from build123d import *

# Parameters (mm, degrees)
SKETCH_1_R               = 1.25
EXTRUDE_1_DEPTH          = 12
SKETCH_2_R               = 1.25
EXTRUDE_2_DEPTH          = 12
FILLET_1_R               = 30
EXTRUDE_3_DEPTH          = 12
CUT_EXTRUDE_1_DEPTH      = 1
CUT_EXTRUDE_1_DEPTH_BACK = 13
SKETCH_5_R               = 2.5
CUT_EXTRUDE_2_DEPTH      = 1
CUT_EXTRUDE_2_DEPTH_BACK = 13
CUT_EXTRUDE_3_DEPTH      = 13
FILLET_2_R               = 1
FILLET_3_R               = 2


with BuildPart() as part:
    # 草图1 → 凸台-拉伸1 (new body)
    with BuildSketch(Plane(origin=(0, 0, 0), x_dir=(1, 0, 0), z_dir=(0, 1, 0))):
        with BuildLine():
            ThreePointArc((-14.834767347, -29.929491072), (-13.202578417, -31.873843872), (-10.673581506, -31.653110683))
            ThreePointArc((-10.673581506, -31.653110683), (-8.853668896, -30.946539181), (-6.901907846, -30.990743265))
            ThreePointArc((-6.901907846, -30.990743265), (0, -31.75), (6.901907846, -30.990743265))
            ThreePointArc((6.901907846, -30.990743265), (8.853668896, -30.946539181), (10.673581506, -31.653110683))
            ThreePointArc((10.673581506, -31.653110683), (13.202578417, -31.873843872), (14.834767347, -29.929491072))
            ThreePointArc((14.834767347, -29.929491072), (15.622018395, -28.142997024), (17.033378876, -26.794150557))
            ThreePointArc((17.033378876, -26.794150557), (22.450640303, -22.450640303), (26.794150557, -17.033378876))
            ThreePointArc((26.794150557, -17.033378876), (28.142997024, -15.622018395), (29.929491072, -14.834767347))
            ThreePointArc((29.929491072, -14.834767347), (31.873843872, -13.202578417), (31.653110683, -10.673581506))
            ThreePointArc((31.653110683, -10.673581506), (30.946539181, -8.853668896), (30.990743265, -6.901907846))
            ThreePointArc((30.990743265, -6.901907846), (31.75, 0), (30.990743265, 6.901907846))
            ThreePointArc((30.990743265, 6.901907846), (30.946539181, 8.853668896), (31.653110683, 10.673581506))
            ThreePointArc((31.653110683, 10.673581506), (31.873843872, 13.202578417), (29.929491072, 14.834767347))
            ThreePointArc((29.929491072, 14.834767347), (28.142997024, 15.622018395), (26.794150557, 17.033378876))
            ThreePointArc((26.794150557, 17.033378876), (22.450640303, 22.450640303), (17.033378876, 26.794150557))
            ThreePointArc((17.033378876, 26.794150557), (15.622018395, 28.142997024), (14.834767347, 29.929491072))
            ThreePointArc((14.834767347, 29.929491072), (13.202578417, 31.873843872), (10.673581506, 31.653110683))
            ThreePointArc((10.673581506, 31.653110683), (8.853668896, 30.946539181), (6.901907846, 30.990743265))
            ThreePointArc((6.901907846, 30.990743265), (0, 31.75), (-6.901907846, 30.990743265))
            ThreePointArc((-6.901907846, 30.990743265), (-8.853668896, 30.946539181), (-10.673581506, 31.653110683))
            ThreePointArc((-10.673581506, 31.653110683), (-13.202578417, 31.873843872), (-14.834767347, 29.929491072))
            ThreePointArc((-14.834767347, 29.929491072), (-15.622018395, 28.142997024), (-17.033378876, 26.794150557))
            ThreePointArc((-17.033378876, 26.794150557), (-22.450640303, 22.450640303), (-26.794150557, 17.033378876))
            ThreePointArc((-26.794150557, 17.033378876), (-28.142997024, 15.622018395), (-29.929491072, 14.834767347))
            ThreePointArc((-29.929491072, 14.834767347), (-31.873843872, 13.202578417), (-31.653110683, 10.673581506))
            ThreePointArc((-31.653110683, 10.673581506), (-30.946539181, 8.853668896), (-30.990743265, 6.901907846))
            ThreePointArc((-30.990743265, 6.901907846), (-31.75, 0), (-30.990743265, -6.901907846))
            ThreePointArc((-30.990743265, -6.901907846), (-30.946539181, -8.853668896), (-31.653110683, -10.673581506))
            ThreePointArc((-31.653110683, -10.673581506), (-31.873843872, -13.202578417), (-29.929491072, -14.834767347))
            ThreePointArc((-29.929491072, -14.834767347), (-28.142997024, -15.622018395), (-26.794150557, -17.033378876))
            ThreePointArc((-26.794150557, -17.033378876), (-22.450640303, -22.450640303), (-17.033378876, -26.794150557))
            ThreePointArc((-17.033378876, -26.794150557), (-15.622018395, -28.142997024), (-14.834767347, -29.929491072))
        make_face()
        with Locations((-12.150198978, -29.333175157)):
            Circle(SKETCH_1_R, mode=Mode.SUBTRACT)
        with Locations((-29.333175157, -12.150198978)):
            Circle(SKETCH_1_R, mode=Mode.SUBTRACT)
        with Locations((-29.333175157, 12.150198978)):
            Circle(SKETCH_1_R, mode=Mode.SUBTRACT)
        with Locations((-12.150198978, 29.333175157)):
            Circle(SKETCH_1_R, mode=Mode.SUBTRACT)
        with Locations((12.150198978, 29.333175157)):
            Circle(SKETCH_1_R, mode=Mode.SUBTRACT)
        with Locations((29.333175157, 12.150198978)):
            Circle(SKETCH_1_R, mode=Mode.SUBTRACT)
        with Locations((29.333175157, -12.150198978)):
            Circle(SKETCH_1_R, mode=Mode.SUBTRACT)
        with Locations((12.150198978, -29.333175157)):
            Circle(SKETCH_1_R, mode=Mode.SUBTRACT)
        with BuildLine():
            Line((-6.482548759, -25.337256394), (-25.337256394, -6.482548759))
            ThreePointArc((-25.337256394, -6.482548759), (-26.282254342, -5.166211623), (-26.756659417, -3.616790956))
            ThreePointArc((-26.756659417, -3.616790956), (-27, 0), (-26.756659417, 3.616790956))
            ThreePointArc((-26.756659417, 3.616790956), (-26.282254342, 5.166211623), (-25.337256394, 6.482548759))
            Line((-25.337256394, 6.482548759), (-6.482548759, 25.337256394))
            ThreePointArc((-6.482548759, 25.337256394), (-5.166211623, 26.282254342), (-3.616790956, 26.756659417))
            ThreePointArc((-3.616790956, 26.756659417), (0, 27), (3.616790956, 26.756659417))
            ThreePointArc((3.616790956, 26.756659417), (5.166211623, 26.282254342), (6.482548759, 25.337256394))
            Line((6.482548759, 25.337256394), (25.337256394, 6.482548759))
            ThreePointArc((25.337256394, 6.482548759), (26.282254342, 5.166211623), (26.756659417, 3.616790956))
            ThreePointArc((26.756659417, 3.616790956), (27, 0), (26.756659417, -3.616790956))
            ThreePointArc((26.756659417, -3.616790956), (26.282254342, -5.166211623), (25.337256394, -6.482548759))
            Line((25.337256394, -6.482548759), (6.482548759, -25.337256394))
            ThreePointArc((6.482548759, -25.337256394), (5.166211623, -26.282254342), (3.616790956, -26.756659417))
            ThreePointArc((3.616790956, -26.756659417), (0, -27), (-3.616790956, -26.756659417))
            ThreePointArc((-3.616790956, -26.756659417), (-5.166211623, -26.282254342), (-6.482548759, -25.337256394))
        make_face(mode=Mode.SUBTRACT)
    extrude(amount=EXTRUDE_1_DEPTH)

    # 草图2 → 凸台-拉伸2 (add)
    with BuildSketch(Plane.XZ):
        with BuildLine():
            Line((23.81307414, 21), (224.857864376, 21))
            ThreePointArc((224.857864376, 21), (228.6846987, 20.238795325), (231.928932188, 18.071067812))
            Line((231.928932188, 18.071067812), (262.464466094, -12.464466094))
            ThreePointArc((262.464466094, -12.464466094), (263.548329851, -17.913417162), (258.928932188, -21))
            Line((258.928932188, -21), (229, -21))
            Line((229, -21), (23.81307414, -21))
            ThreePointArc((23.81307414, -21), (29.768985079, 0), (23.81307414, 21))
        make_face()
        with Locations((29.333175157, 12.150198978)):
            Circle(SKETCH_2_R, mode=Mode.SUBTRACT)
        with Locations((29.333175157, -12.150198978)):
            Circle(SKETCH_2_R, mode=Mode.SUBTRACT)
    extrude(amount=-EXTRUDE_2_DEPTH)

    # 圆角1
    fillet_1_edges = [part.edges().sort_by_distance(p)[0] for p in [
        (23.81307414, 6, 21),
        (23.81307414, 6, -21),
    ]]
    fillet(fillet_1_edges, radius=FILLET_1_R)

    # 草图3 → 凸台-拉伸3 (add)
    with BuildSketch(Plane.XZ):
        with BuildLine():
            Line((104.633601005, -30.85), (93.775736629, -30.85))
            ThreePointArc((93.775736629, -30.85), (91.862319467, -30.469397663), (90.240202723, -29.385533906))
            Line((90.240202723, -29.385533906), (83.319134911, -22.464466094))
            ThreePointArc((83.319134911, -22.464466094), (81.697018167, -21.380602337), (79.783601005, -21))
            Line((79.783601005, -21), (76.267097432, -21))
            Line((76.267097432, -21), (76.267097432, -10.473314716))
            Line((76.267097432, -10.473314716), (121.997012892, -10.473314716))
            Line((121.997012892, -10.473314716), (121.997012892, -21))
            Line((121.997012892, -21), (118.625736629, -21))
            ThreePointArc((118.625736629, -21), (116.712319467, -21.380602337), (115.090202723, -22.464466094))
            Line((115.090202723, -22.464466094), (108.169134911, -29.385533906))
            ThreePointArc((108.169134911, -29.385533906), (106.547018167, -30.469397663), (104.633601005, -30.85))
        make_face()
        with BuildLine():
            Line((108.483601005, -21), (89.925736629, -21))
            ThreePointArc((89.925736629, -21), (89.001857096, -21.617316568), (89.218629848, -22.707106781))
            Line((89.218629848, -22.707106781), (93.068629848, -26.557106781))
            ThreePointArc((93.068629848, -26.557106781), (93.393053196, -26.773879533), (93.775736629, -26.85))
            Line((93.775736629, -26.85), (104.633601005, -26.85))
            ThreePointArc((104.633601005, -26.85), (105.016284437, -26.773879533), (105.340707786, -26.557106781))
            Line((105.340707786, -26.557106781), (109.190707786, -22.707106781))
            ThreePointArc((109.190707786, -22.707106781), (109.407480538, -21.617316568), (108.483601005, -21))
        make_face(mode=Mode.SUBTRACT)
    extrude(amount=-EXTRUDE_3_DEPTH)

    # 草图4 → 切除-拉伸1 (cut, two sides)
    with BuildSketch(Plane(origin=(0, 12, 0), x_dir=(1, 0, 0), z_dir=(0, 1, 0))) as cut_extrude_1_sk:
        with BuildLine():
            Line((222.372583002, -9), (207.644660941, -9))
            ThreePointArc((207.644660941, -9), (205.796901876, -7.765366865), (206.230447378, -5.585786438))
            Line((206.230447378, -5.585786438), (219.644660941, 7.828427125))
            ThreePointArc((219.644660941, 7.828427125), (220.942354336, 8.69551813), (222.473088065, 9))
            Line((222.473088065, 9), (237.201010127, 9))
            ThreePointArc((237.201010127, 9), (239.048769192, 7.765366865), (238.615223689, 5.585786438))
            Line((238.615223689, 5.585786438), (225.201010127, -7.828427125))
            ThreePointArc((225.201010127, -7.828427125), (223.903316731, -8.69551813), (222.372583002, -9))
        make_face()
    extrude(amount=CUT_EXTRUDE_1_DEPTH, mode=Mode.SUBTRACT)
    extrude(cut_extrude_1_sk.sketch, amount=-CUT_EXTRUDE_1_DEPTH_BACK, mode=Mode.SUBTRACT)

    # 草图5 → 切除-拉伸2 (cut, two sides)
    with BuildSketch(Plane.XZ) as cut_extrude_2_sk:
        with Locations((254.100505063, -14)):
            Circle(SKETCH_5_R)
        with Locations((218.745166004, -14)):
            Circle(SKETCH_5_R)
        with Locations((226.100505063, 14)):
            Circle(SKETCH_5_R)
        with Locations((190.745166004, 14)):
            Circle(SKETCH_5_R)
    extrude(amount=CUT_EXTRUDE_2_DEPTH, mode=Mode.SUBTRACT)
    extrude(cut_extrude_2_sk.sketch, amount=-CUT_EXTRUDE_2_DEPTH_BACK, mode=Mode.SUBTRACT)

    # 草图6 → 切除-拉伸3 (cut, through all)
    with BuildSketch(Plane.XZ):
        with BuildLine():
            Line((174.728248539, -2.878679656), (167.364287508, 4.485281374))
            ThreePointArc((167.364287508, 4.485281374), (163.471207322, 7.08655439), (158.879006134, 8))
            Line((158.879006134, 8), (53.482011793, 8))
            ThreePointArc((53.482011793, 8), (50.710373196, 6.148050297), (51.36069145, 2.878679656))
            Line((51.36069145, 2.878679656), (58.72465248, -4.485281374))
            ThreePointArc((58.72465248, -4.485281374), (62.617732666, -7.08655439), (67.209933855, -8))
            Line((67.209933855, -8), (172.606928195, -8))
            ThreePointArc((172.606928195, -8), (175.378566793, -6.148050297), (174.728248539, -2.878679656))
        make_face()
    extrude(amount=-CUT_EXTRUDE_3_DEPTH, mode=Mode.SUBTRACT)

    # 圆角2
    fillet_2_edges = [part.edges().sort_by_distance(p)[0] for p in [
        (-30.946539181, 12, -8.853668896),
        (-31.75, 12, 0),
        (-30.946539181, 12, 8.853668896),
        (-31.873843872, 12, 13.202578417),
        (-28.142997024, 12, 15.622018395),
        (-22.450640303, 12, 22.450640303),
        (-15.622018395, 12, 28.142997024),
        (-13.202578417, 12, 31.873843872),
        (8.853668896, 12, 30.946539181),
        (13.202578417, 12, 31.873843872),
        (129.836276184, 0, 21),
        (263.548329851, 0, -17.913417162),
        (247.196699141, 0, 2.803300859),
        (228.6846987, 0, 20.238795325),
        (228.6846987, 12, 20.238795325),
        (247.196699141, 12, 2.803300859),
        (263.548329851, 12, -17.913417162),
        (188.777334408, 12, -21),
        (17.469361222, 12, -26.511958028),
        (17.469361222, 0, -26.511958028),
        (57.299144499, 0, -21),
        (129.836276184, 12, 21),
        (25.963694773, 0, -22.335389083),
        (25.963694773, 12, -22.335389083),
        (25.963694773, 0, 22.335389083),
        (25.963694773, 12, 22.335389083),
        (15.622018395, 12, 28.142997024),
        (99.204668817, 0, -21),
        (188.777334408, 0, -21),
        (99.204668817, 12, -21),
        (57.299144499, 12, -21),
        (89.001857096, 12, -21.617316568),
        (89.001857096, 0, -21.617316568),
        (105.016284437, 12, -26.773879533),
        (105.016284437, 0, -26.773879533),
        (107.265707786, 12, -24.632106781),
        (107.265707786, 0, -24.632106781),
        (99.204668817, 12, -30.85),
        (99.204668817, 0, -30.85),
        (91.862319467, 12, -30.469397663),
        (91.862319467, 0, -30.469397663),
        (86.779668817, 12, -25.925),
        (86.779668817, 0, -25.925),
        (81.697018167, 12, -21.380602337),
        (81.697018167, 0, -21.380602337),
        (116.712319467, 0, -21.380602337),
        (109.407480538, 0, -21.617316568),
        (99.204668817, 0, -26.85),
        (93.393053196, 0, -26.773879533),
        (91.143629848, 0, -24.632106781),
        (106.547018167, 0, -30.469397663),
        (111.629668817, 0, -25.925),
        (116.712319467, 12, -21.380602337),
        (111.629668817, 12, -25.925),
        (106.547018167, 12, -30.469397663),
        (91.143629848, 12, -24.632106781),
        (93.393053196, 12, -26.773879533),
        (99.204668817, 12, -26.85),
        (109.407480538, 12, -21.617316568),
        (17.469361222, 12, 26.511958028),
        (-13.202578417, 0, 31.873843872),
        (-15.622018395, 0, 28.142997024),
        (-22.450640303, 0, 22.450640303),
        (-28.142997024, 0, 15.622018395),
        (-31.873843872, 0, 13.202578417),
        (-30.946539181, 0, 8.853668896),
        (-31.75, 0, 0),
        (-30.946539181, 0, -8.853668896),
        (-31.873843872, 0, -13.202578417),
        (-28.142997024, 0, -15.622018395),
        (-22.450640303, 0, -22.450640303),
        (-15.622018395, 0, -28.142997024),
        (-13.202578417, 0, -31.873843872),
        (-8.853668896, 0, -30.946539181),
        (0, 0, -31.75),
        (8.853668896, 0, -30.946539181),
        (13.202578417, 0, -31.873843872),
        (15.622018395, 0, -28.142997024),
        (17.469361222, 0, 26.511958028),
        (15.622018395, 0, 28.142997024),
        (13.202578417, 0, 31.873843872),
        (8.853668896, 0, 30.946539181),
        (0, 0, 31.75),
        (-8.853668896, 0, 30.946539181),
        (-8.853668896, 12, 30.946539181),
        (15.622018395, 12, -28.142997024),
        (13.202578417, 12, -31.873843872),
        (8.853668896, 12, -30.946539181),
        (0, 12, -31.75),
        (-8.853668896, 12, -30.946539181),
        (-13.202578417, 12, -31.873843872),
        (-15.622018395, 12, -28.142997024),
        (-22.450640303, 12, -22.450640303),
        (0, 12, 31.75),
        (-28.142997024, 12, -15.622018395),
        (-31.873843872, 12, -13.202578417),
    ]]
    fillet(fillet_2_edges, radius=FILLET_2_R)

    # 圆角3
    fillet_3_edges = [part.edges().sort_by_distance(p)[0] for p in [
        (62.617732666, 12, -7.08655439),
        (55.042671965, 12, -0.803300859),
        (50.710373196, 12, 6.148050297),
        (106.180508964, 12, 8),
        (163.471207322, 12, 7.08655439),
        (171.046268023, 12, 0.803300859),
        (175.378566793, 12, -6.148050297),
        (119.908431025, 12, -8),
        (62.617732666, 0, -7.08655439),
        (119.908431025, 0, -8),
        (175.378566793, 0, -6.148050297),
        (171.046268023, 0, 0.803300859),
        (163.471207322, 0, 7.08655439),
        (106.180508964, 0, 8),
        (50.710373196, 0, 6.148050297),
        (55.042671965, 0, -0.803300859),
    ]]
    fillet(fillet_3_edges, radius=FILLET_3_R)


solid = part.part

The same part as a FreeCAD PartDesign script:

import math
import FreeCAD as App
import Part
import Sketcher

V = App.Vector
Q = App.Units.Quantity


def edges_at(feature, points):
    """Names of the edges that pass closest to the given points."""
    edges = feature.Shape.Edges
    near = lambda p: min(range(len(edges)), key=lambda i: edges[i].distToShape(Part.Vertex(*p))[0])
    return sorted({f"Edge{near(p) + 1}" for p in points})

doc = App.newDocument("Part")
body = doc.addObject("PartDesign::Body", "Body")

sketch1 = body.newObject("Sketcher::SketchObject", "Sketch")
sketch1.AttachmentSupport = (doc.getObject("XZ_Plane"), [""])
sketch1.MapMode = "FlatFace"
sketch1.addGeometry([
    Part.ArcOfCircle(Part.Circle(V(-12.2, 29.3, 0), V(0, 0, 1), 2.8), math.radians(58), math.radians(167)),
    Part.ArcOfCircle(Part.Circle(V(-8, 35.9, 0), V(0, 0, 1), 5), math.radians(-122), math.radians(-77)),
    Part.ArcOfCircle(Part.Circle(V(0, 0, 0), V(0, 0, 1), 31.8), math.radians(77), math.radians(103)),
    Part.ArcOfCircle(Part.Circle(V(8, 35.9, 0), V(0, 0, 1), 5), math.radians(-103), math.radians(-58)),
    Part.ArcOfCircle(Part.Circle(V(12.2, 29.3, 0), V(0, 0, 1), 2.8), math.radians(13), math.radians(122)),
    Part.ArcOfCircle(Part.Circle(V(19.7, 31, 0), V(0, 0, 1), 5), math.radians(-167), math.radians(-122)),
    Part.ArcOfCircle(Part.Circle(V(0, 0, 0), V(0, 0, 1), 31.7), math.radians(32), math.radians(58)),
    Part.ArcOfCircle(Part.Circle(V(31, 19.7, 0), V(0, 0, 1), 5), math.radians(-148), math.radians(-103)),
    Part.ArcOfCircle(Part.Circle(V(29.3, 12.2, 0), V(0, 0, 1), 2.8), math.radians(-32), math.radians(77)),
    Part.ArcOfCircle(Part.Circle(V(35.9, 8, 0), V(0, 0, 1), 5), math.radians(148), math.radians(193)),
    Part.ArcOfCircle(Part.Circle(V(0, 0, 0), V(0, 0, 1), 31.8), math.radians(-13), math.radians(13)),
    Part.ArcOfCircle(Part.Circle(V(35.9, -8, 0), V(0, 0, 1), 5), math.radians(167), math.radians(212)),
    Part.ArcOfCircle(Part.Circle(V(29.3, -12.2, 0), V(0, 0, 1), 2.8), math.radians(-77), math.radians(32)),
    Part.ArcOfCircle(Part.Circle(V(31, -19.7, 0), V(0, 0, 1), 5), math.radians(103), math.radians(148)),
    Part.ArcOfCircle(Part.Circle(V(0, 0, 0), V(0, 0, 1), 31.7), math.radians(-58), math.radians(-32)),
    Part.ArcOfCircle(Part.Circle(V(19.7, -31, 0), V(0, 0, 1), 5), math.radians(122), math.radians(167)),
    Part.ArcOfCircle(Part.Circle(V(12.2, -29.3, 0), V(0, 0, 1), 2.8), math.radians(-122), math.radians(-13)),
    Part.ArcOfCircle(Part.Circle(V(8, -35.9, 0), V(0, 0, 1), 5), math.radians(58), math.radians(103)),
    Part.ArcOfCircle(Part.Circle(V(0, 0, 0), V(0, 0, 1), 31.8), math.radians(-103), math.radians(-77)),
    Part.ArcOfCircle(Part.Circle(V(-8, -35.9, 0), V(0, 0, 1), 5), math.radians(77), math.radians(122)),
    Part.ArcOfCircle(Part.Circle(V(-12.2, -29.3, 0), V(0, 0, 1), 2.8), math.radians(-167), math.radians(-58)),
    Part.ArcOfCircle(Part.Circle(V(-19.7, -31, 0), V(0, 0, 1), 5), math.radians(13), math.radians(58)),
    Part.ArcOfCircle(Part.Circle(V(0, 0, 0), V(0, 0, 1), 31.7), math.radians(-148), math.radians(-122)),
    Part.ArcOfCircle(Part.Circle(V(-31, -19.7, 0), V(0, 0, 1), 5), math.radians(32), math.radians(77)),
    Part.ArcOfCircle(Part.Circle(V(-29.3, -12.2, 0), V(0, 0, 1), 2.8), math.radians(148), math.radians(257)),
    Part.ArcOfCircle(Part.Circle(V(-35.9, -8, 0), V(0, 0, 1), 5), math.radians(-32), math.radians(13)),
    Part.ArcOfCircle(Part.Circle(V(0, 0, 0), V(0, 0, 1), 31.8), math.radians(167), math.radians(193)),
    Part.ArcOfCircle(Part.Circle(V(-35.9, 8, 0), V(0, 0, 1), 5), math.radians(-13), math.radians(32)),
    Part.ArcOfCircle(Part.Circle(V(-29.3, 12.2, 0), V(0, 0, 1), 2.8), math.radians(103), math.radians(212)),
    Part.ArcOfCircle(Part.Circle(V(-31, 19.7, 0), V(0, 0, 1), 5), math.radians(-77), math.radians(-32)),
    Part.ArcOfCircle(Part.Circle(V(0, 0, 0), V(0, 0, 1), 31.7), math.radians(122), math.radians(148)),
    Part.ArcOfCircle(Part.Circle(V(-19.7, 31, 0), V(0, 0, 1), 5), math.radians(-58), math.radians(-13)),
    Part.Circle(V(-12.2, 29.3, 0), V(0, 0, 1), 1.2),
    Part.Circle(V(-29.3, 12.2, 0), V(0, 0, 1), 1.2),
    Part.Circle(V(12.2, 29.3, 0), V(0, 0, 1), 1.2),
    Part.Circle(V(29.3, 12.2, 0), V(0, 0, 1), 1.2),
    Part.Circle(V(-29.3, -12.2, 0), V(0, 0, 1), 1.2),
    Part.Circle(V(-12.2, -29.3, 0), V(0, 0, 1), 1.2),
    Part.ArcOfCircle(Part.Circle(V(-2.9, 21.8, 0), V(0, 0, 1), 5), math.radians(98), math.radians(135)),
    Part.LineSegment(V(-6.5, 25.3, 0), V(-25.3, 6.5, 0)),
    Part.ArcOfCircle(Part.Circle(V(-21.8, 2.9, 0), V(0, 0, 1), 5), math.radians(135), math.radians(172)),
    Part.ArcOfCircle(Part.Circle(V(0, 0, 0), V(0, 0, 1), 27), math.radians(172.3), math.radians(187.7)),
    Part.ArcOfCircle(Part.Circle(V(-21.8, -2.9, 0), V(0, 0, 1), 5), math.radians(-172), math.radians(-135)),
    Part.LineSegment(V(-25.3, -6.5, 0), V(-6.5, -25.3, 0)),
    Part.ArcOfCircle(Part.Circle(V(-2.9, -21.8, 0), V(0, 0, 1), 5), math.radians(-135), math.radians(-98)),
    Part.ArcOfCircle(Part.Circle(V(0, 0, 0), V(0, 0, 1), 27), math.radians(-97.7), math.radians(-82.3)),
    Part.ArcOfCircle(Part.Circle(V(2.9, -21.8, 0), V(0, 0, 1), 5), math.radians(-82), math.radians(-45)),
    Part.LineSegment(V(6.5, -25.3, 0), V(25.3, -6.5, 0)),
    Part.ArcOfCircle(Part.Circle(V(21.8, -2.9, 0), V(0, 0, 1), 5), math.radians(-45), math.radians(-8)),
    Part.ArcOfCircle(Part.Circle(V(0, 0, 0), V(0, 0, 1), 27), math.radians(-7.7), math.radians(7.7)),
    Part.ArcOfCircle(Part.Circle(V(21.8, 2.9, 0), V(0, 0, 1), 5), math.radians(8), math.radians(45)),
    Part.LineSegment(V(25.3, 6.5, 0), V(6.5, 25.3, 0)),
    Part.ArcOfCircle(Part.Circle(V(2.9, 21.8, 0), V(0, 0, 1), 5), math.radians(45), math.radians(82)),
    Part.ArcOfCircle(Part.Circle(V(0, 0, 0), V(0, 0, 1), 27), math.radians(82.3), math.radians(97.7)),
    Part.Circle(V(29.3, -12.2, 0), V(0, 0, 1), 1.2),
    Part.Circle(V(12.2, -29.3, 0), V(0, 0, 1), 1.2),
], False)
sketch1.addConstraint([
    Sketcher.Constraint("Tangent", 0, 1, 1, 1),
    Sketcher.Constraint("Tangent", 1, 2, 2, 2),
    Sketcher.Constraint("Tangent", 2, 1, 3, 1),
    Sketcher.Constraint("Tangent", 3, 2, 4, 2),
    Sketcher.Constraint("Tangent", 4, 1, 5, 1),
    Sketcher.Constraint("Tangent", 5, 2, 6, 2),
    Sketcher.Constraint("Tangent", 6, 1, 7, 1),
    Sketcher.Constraint("Tangent", 7, 2, 8, 2),
    Sketcher.Constraint("Tangent", 8, 1, 9, 1),
    Sketcher.Constraint("Tangent", 9, 2, 10, 2),
    Sketcher.Constraint("Tangent", 10, 1, 11, 1),
    Sketcher.Constraint("Tangent", 11, 2, 12, 2),
    Sketcher.Constraint("Tangent", 12, 1, 13, 1),
    Sketcher.Constraint("Tangent", 13, 2, 14, 2),
    Sketcher.Constraint("Tangent", 14, 1, 15, 1),
    Sketcher.Constraint("Tangent", 15, 2, 16, 2),
    Sketcher.Constraint("Tangent", 16, 1, 17, 1),
    Sketcher.Constraint("Tangent", 17, 2, 18, 2),
    Sketcher.Constraint("Tangent", 18, 1, 19, 1),
    Sketcher.Constraint("Tangent", 19, 2, 20, 2),
    Sketcher.Constraint("Tangent", 20, 1, 21, 1),
    Sketcher.Constraint("Tangent", 21, 2, 22, 2),
    Sketcher.Constraint("Tangent", 22, 1, 23, 1),
    Sketcher.Constraint("Tangent", 23, 2, 24, 2),
    Sketcher.Constraint("Tangent", 24, 1, 25, 1),
    Sketcher.Constraint("Tangent", 25, 2, 26, 2),
    Sketcher.Constraint("Tangent", 26, 1, 27, 1),
    Sketcher.Constraint("Tangent", 27, 2, 28, 2),
    Sketcher.Constraint("Tangent", 28, 1, 29, 1),
    Sketcher.Constraint("Tangent", 29, 2, 30, 2),
    Sketcher.Constraint("Tangent", 30, 1, 31, 1),
    Sketcher.Constraint("Tangent", 31, 2, 0, 2),
    Sketcher.Constraint("Tangent", 38, 2, 39, 1),
    Sketcher.Constraint("Tangent", 39, 2, 40, 1),
    Sketcher.Constraint("Tangent", 40, 2, 41, 1),
    Sketcher.Constraint("Tangent", 41, 2, 42, 1),
    Sketcher.Constraint("Tangent", 42, 2, 43, 1),
    Sketcher.Constraint("Tangent", 43, 2, 44, 1),
    Sketcher.Constraint("Tangent", 44, 2, 45, 1),
    Sketcher.Constraint("Tangent", 45, 2, 46, 1),
    Sketcher.Constraint("Tangent", 46, 2, 47, 1),
    Sketcher.Constraint("Tangent", 47, 2, 48, 1),
    Sketcher.Constraint("Tangent", 48, 2, 49, 1),
    Sketcher.Constraint("Tangent", 49, 2, 50, 1),
    Sketcher.Constraint("Tangent", 50, 2, 51, 1),
    Sketcher.Constraint("Tangent", 51, 2, 52, 1),
    Sketcher.Constraint("Tangent", 52, 2, 53, 1),
    Sketcher.Constraint("Tangent", 53, 2, 38, 1),
    Sketcher.Constraint("Coincident", 2, 3, -1, 1),
    Sketcher.Constraint("Coincident", 6, 3, -1, 1),
    Sketcher.Constraint("Coincident", 10, 3, -1, 1),
    Sketcher.Constraint("Coincident", 14, 3, -1, 1),
    Sketcher.Constraint("Coincident", 18, 3, -1, 1),
    Sketcher.Constraint("Coincident", 22, 3, -1, 1),
    Sketcher.Constraint("Coincident", 26, 3, -1, 1),
    Sketcher.Constraint("Coincident", 30, 3, -1, 1),
    Sketcher.Constraint("Coincident", 41, 3, -1, 1),
    Sketcher.Constraint("Coincident", 45, 3, -1, 1),
    Sketcher.Constraint("Coincident", 49, 3, -1, 1),
    Sketcher.Constraint("Coincident", 53, 3, -1, 1),
    Sketcher.Constraint("Coincident", 32, 3, 0, 3),
    Sketcher.Constraint("Coincident", 33, 3, 28, 3),
    Sketcher.Constraint("Coincident", 34, 3, 4, 3),
    Sketcher.Constraint("Coincident", 35, 3, 8, 3),
    Sketcher.Constraint("Coincident", 36, 3, 24, 3),
    Sketcher.Constraint("Coincident", 37, 3, 20, 3),
    Sketcher.Constraint("Coincident", 54, 3, 12, 3),
    Sketcher.Constraint("Coincident", 55, 3, 16, 3),
    Sketcher.Constraint("Equal", 1, 3),
    Sketcher.Constraint("Equal", 0, 4),
    Sketcher.Constraint("Equal", 3, 5),
    Sketcher.Constraint("Equal", 2, 6),
    Sketcher.Constraint("Equal", 5, 7),
    Sketcher.Constraint("Equal", 4, 8),
    Sketcher.Constraint("Equal", 7, 9),
    Sketcher.Constraint("Equal", 6, 10),
    Sketcher.Constraint("Equal", 9, 11),
    Sketcher.Constraint("Equal", 8, 12),
    Sketcher.Constraint("Equal", 11, 13),
    Sketcher.Constraint("Equal", 10, 14),
    Sketcher.Constraint("Equal", 13, 15),
    Sketcher.Constraint("Equal", 12, 16),
    Sketcher.Constraint("Equal", 15, 17),
    Sketcher.Constraint("Equal", 14, 18),
    Sketcher.Constraint("Equal", 17, 19),
    Sketcher.Constraint("Equal", 16, 20),
    Sketcher.Constraint("Equal", 19, 21),
    Sketcher.Constraint("Equal", 18, 22),
    Sketcher.Constraint("Equal", 21, 23),
    Sketcher.Constraint("Equal", 20, 24),
    Sketcher.Constraint("Equal", 23, 25),
    Sketcher.Constraint("Equal", 22, 26),
    Sketcher.Constraint("Equal", 25, 27),
    Sketcher.Constraint("Equal", 24, 28),
    Sketcher.Constraint("Equal", 27, 29),
    Sketcher.Constraint("Equal", 26, 30),
    Sketcher.Constraint("Equal", 29, 31),
    Sketcher.Constraint("Equal", 32, 33),
    Sketcher.Constraint("Equal", 33, 34),
    Sketcher.Constraint("Equal", 34, 35),
    Sketcher.Constraint("Equal", 35, 36),
    Sketcher.Constraint("Equal", 36, 37),
    Sketcher.Constraint("Equal", 31, 38),
    Sketcher.Constraint("Equal", 38, 40),
    Sketcher.Constraint("Equal", 40, 42),
    Sketcher.Constraint("Equal", 42, 44),
    Sketcher.Constraint("Equal", 41, 45),
    Sketcher.Constraint("Equal", 44, 46),
    Sketcher.Constraint("Equal", 46, 48),
    Sketcher.Constraint("Equal", 45, 49),
    Sketcher.Constraint("Equal", 48, 50),
    Sketcher.Constraint("Equal", 50, 52),
    Sketcher.Constraint("Equal", 49, 53),
    Sketcher.Constraint("Equal", 37, 54),
    Sketcher.Constraint("Equal", 54, 55),
    Sketcher.Constraint("Symmetric", 0, 3, 16, 3, -1, 1),
    Sketcher.Constraint("Symmetric", 4, 3, 20, 3, -1, 1),
    Sketcher.Constraint("Symmetric", 8, 3, 24, 3, -1, 1),
    Sketcher.Constraint("Symmetric", 12, 3, 28, 3, -1, 1),
    Sketcher.Constraint("Symmetric", 38, 2, 46, 2, -1, 1),
    Sketcher.Constraint("Symmetric", 42, 2, 50, 2, -1, 1),
    Sketcher.Constraint("Symmetric", 0, 3, 4, 3, -2),
    Sketcher.Constraint("Symmetric", 12, 3, 24, 3, -2),
    Sketcher.Constraint("Symmetric", 43, 2, 46, 2, -2),
    Sketcher.Constraint("Perpendicular", 39, 43),
    Sketcher.Constraint("Radius", 1, Q("5 mm")),
    Sketcher.Constraint("Radius", 41, Q("27 mm")),
    Sketcher.Constraint("Diameter", 32, Q("2.5 mm")),
    Sketcher.Constraint("Radius", 0, Q("2.75 mm")),
    Sketcher.Constraint("Radius", 2, Q("31.75 mm")),
    Sketcher.Constraint("DistanceX", 0, 3, -1, 1, Q("12.150199 mm")),
    Sketcher.Constraint("DistanceX", -1, 1, 5, 3, Q("19.715801 mm")),
    Sketcher.Constraint("DistanceX", -1, 1, 7, 3, Q("31.013702 mm")),
    Sketcher.Constraint("DistanceY", -1, 1, 8, 3, Q("12.150199 mm")),
    Sketcher.Constraint("DistanceX", 38, 2, -1, 1, Q("6.482549 mm")),
])
pad1 = body.newObject("PartDesign::Pad", "Pad")
pad1.Profile = sketch1
pad1.Length = 12
pad1.Reversed = True

sketch2 = body.newObject("Sketcher::SketchObject", "Sketch001")
sketch2.AttachmentSupport = (doc.getObject("XZ_Plane"), [""])
sketch2.MapMode = "FlatFace"
sketch2.addGeometry([
    Part.LineSegment(V(224.9, 21, 0), V(23.8, 21, 0)),
    Part.ArcOfCircle(Part.Circle(V(-10.2, 0, 0), V(0, 0, 1), 40), math.radians(-32), math.radians(32)),
    Part.LineSegment(V(23.8, -21, 0), V(258.9, -21, 0)),
    Part.ArcOfCircle(Part.Circle(V(258.9, -16, 0), V(0, 0, 1), 5), math.radians(-90), math.radians(45)),
    Part.LineSegment(V(262.5, -12.5, 0), V(231.9, 18.1, 0)),
    Part.ArcOfCircle(Part.Circle(V(224.9, 11, 0), V(0, 0, 1), 10), math.radians(45), math.radians(90)),
    Part.Circle(V(29.3, -12.2, 0), V(0, 0, 1), 1.2),
    Part.Circle(V(29.3, 12.2, 0), V(0, 0, 1), 1.2),
], False)
sketch2.addConstraint([
    Sketcher.Constraint("Coincident", 0, 2, 1, 2),
    Sketcher.Constraint("Coincident", 1, 1, 2, 1),
    Sketcher.Constraint("Tangent", 2, 2, 3, 1),
    Sketcher.Constraint("Tangent", 3, 2, 4, 1),
    Sketcher.Constraint("Tangent", 4, 2, 5, 1),
    Sketcher.Constraint("Tangent", 5, 2, 0, 1),
    Sketcher.Constraint("Horizontal", 0),
    Sketcher.Constraint("Horizontal", 2),
    Sketcher.Constraint("Equal", 6, 7),
    Sketcher.Constraint("Symmetric", 6, 3, 7, 3, -1),
    Sketcher.Constraint("Symmetric", 0, 2, 1, 1, -1),
    Sketcher.Constraint("Radius", 1, Q("40 mm")),
    Sketcher.Constraint("Radius", 3, Q("5 mm")),
    Sketcher.Constraint("Radius", 5, Q("10 mm")),
    Sketcher.Constraint("Diameter", 6, Q("2.5 mm")),
    Sketcher.Constraint("Angle", 4, Q("135 deg")),
    Sketcher.Constraint("DistanceY", 3, 3, -1, 1, Q("16 mm")),
    Sketcher.Constraint("DistanceX", 0, 2, 0, 1, Q("201.04479 mm")),
    Sketcher.Constraint("DistanceY", 6, 3, -1, 1, Q("12.150199 mm")),
    Sketcher.Constraint("DistanceX", 0, 2, 7, 3, Q("5.520101 mm")),
    Sketcher.Constraint("DistanceX", 1, 3, -1, 1, Q("10.231015 mm")),
])
pad2 = body.newObject("PartDesign::Pad", "Pad001")
pad2.Profile = sketch2
pad2.Length = 12
pad2.Reversed = True
doc.recompute()

fillet = body.newObject("PartDesign::Fillet", "Fillet")
fillet.Base = (pad2, edges_at(pad2, [(23.813, 6, 21), (23.813, 6, -21)]))
fillet.Radius = 30

sketch3 = body.newObject("Sketcher::SketchObject", "Sketch002")
sketch3.AttachmentSupport = (doc.getObject("XZ_Plane"), [""])
sketch3.MapMode = "FlatFace"
sketch3.addGeometry([
    Part.LineSegment(V(93.8, -30.9, 0), V(104.6, -30.9, 0)),
    Part.ArcOfCircle(Part.Circle(V(104.6, -25.9, 0), V(0, 0, 1), 5), math.radians(-90), math.radians(-45)),
    Part.LineSegment(V(108.2, -29.4, 0), V(115.1, -22.5, 0)),
    Part.ArcOfCircle(Part.Circle(V(118.6, -26, 0), V(0, 0, 1), 5), math.radians(90), math.radians(135)),
    Part.LineSegment(V(118.6, -21, 0), V(122, -21, 0)),
    Part.LineSegment(V(122, -21, 0), V(122, -10.5, 0)),
    Part.LineSegment(V(122, -10.5, 0), V(76.3, -10.5, 0)),
    Part.LineSegment(V(76.3, -10.5, 0), V(76.3, -21, 0)),
    Part.LineSegment(V(76.3, -21, 0), V(79.8, -21, 0)),
    Part.ArcOfCircle(Part.Circle(V(79.8, -26, 0), V(0, 0, 1), 5), math.radians(45), math.radians(90)),
    Part.LineSegment(V(83.3, -22.5, 0), V(90.2, -29.4, 0)),
    Part.ArcOfCircle(Part.Circle(V(93.8, -25.9, 0), V(0, 0, 1), 5), math.radians(-135), math.radians(-90)),
    Part.ArcOfCircle(Part.Circle(V(108.5, -22, 0), V(0, 0, 1), 1), math.radians(-45), math.radians(90)),
    Part.LineSegment(V(109.2, -22.7, 0), V(105.3, -26.6, 0)),
    Part.ArcOfCircle(Part.Circle(V(104.6, -25.9, 0), V(0, 0, 1), 1), math.radians(-90), math.radians(-45)),
    Part.LineSegment(V(104.6, -26.9, 0), V(93.8, -26.9, 0)),
    Part.ArcOfCircle(Part.Circle(V(93.8, -25.9, 0), V(0, 0, 1), 1), math.radians(-135), math.radians(-90)),
    Part.LineSegment(V(93.1, -26.6, 0), V(89.2, -22.7, 0)),
    Part.ArcOfCircle(Part.Circle(V(89.9, -22, 0), V(0, 0, 1), 1), math.radians(90), math.radians(225)),
    Part.LineSegment(V(89.9, -21, 0), V(108.5, -21, 0)),
], False)
sketch3.addConstraint([
    Sketcher.Constraint("Tangent", 0, 2, 1, 1),
    Sketcher.Constraint("Tangent", 1, 2, 2, 1),
    Sketcher.Constraint("Tangent", 2, 2, 3, 2),
    Sketcher.Constraint("Tangent", 3, 1, 4, 1),
    Sketcher.Constraint("Coincident", 4, 2, 5, 1),
    Sketcher.Constraint("Coincident", 5, 2, 6, 1),
    Sketcher.Constraint("Coincident", 6, 2, 7, 1),
    Sketcher.Constraint("Coincident", 7, 2, 8, 1),
    Sketcher.Constraint("Tangent", 8, 2, 9, 2),
    Sketcher.Constraint("Tangent", 9, 1, 10, 1),
    Sketcher.Constraint("Tangent", 10, 2, 11, 1),
    Sketcher.Constraint("Tangent", 11, 2, 0, 1),
    Sketcher.Constraint("Tangent", 12, 1, 13, 1),
    Sketcher.Constraint("Tangent", 13, 2, 14, 2),
    Sketcher.Constraint("Tangent", 14, 1, 15, 1),
    Sketcher.Constraint("Tangent", 15, 2, 16, 2),
    Sketcher.Constraint("Tangent", 16, 1, 17, 1),
    Sketcher.Constraint("Tangent", 17, 2, 18, 2),
    Sketcher.Constraint("Tangent", 18, 1, 19, 1),
    Sketcher.Constraint("Tangent", 19, 2, 12, 2),
    Sketcher.Constraint("Horizontal", 0),
    Sketcher.Constraint("Horizontal", 4),
    Sketcher.Constraint("Vertical", 5),
    Sketcher.Constraint("Horizontal", 6),
    Sketcher.Constraint("Vertical", 7),
    Sketcher.Constraint("Horizontal", 8),
    Sketcher.Constraint("Horizontal", 15),
    Sketcher.Constraint("Horizontal", 19),
    Sketcher.Constraint("Coincident", 14, 3, 1, 3),
    Sketcher.Constraint("Coincident", 16, 3, 11, 3),
    Sketcher.Constraint("Equal", 1, 3),
    Sketcher.Constraint("Equal", 3, 9),
    Sketcher.Constraint("Equal", 9, 11),
    Sketcher.Constraint("Equal", 12, 14),
    Sketcher.Constraint("Equal", 16, 18),
    Sketcher.Constraint("Perpendicular", 2, 10),
    Sketcher.Constraint("Perpendicular", 10, 13),
    Sketcher.Constraint("Perpendicular", 13, 17),
    Sketcher.Constraint("Horizontal", 3, 3, 9, 3),
    Sketcher.Constraint("Horizontal", 2, 2, 9, 1),
    Sketcher.Constraint("Horizontal", 8, 2, 18, 1),
    Sketcher.Constraint("Radius", 1, Q("5 mm")),
    Sketcher.Constraint("Radius", 12, Q("1 mm")),
    Sketcher.Constraint("DistanceY", 3, 3, -1, 1, Q("26 mm")),
    Sketcher.Constraint("DistanceX", 9, 3, 12, 3, Q("28.7 mm")),
    Sketcher.Constraint("DistanceY", 1, 3, -1, 1, Q("25.85 mm")),
    Sketcher.Constraint("DistanceX", -1, 1, 1, 3, Q("104.633601 mm")),
    Sketcher.Constraint("DistanceX", 4, 1, 4, 2, Q("3.371276 mm")),
    Sketcher.Constraint("DistanceX", 6, 2, 6, 1, Q("45.729915 mm")),
    Sketcher.Constraint("DistanceY", 5, 1, 5, 2, Q("10.526685 mm")),
])
pad3 = body.newObject("PartDesign::Pad", "Pad002")
pad3.Profile = sketch3
pad3.Length = 12
pad3.Reversed = True

sketch4 = body.newObject("Sketcher::SketchObject", "Sketch003")
sketch4.AttachmentSupport = (doc.getObject("XZ_Plane"), [""])
sketch4.MapMode = "FlatFace"
sketch4.AttachmentOffset = App.Placement(V(0, 0, -12), App.Rotation())
sketch4.addGeometry([
    Part.LineSegment(V(207.6, 9, 0), V(222.4, 9, 0)),
    Part.ArcOfCircle(Part.Circle(V(222.4, 5, 0), V(0, 0, 1), 4), math.radians(45), math.radians(90)),
    Part.LineSegment(V(225.2, 7.8, 0), V(238.6, -5.6, 0)),
    Part.ArcOfCircle(Part.Circle(V(237.2, -7, 0), V(0, 0, 1), 2), math.radians(-90), math.radians(45)),
    Part.LineSegment(V(237.2, -9, 0), V(222.5, -9, 0)),
    Part.ArcOfCircle(Part.Circle(V(222.5, -5, 0), V(0, 0, 1), 4), math.radians(-135), math.radians(-90)),
    Part.LineSegment(V(219.6, -7.8, 0), V(206.2, 5.6, 0)),
    Part.ArcOfCircle(Part.Circle(V(207.6, 7, 0), V(0, 0, 1), 2), math.radians(90), math.radians(225)),
], False)
sketch4.addConstraint([
    Sketcher.Constraint("Tangent", 0, 2, 1, 2),
    Sketcher.Constraint("Tangent", 1, 1, 2, 1),
    Sketcher.Constraint("Tangent", 2, 2, 3, 2),
    Sketcher.Constraint("Tangent", 3, 1, 4, 1),
    Sketcher.Constraint("Tangent", 4, 2, 5, 2),
    Sketcher.Constraint("Tangent", 5, 1, 6, 1),
    Sketcher.Constraint("Tangent", 6, 2, 7, 2),
    Sketcher.Constraint("Tangent", 7, 1, 0, 1),
    Sketcher.Constraint("Horizontal", 0),
    Sketcher.Constraint("Horizontal", 4),
    Sketcher.Constraint("Equal", 1, 5),
    Sketcher.Constraint("Equal", 3, 7),
    Sketcher.Constraint("Parallel", 2, 6),
    Sketcher.Constraint("Radius", 1, Q("4 mm")),
    Sketcher.Constraint("Radius", 3, Q("2 mm")),
    Sketcher.Constraint("Angle", 2, Q("-45 deg")),
    Sketcher.Constraint("DistanceY", -1, 1, 1, 3, Q("5 mm")),
    Sketcher.Constraint("DistanceY", 3, 3, -1, 1, Q("7 mm")),
    Sketcher.Constraint("DistanceX", 0, 1, 0, 2, Q("14.727922 mm")),
    Sketcher.Constraint("DistanceX", -1, 1, 3, 3, Q("237.20101 mm")),
])
pocket1 = body.newObject("PartDesign::Pocket", "Pocket")
pocket1.Profile = sketch4
pocket1.Type = "ThroughAll"
pocket1.Midplane = True

sketch5 = body.newObject("Sketcher::SketchObject", "Sketch004")
sketch5.AttachmentSupport = (doc.getObject("XZ_Plane"), [""])
sketch5.MapMode = "FlatFace"
sketch5.addGeometry([
    Part.Circle(V(254.1, -14, 0), V(0, 0, 1), 2.5),
    Part.Circle(V(218.7, -14, 0), V(0, 0, 1), 2.5),
    Part.Circle(V(226.1, 14, 0), V(0, 0, 1), 2.5),
    Part.Circle(V(190.7, 14, 0), V(0, 0, 1), 2.5),
], False)
sketch5.addConstraint([
    Sketcher.Constraint("Equal", 0, 1),
    Sketcher.Constraint("Equal", 1, 2),
    Sketcher.Constraint("Equal", 2, 3),
    Sketcher.Constraint("Horizontal", 0, 3, 1, 3),
    Sketcher.Constraint("Horizontal", 2, 3, 3, 3),
    Sketcher.Constraint("Diameter", 0, Q("5 mm")),
    Sketcher.Constraint("DistanceY", 0, 3, -1, 1, Q("14 mm")),
    Sketcher.Constraint("DistanceY", -1, 1, 2, 3, Q("14 mm")),
    Sketcher.Constraint("DistanceX", 2, 3, 0, 3, Q("28 mm")),
    Sketcher.Constraint("DistanceX", 3, 3, 1, 3, Q("28 mm")),
    Sketcher.Constraint("DistanceX", 1, 3, 0, 3, Q("35.355339 mm")),
    Sketcher.Constraint("DistanceX", -1, 1, 0, 3, Q("254.100505 mm")),
])
pocket2 = body.newObject("PartDesign::Pocket", "Pocket001")
pocket2.Profile = sketch5
pocket2.Type = "ThroughAll"
pocket2.Midplane = True

sketch6 = body.newObject("Sketcher::SketchObject", "Sketch005")
sketch6.AttachmentSupport = (doc.getObject("XZ_Plane"), [""])
sketch6.MapMode = "FlatFace"
sketch6.addGeometry([
    Part.LineSegment(V(174.7, -2.9, 0), V(167.4, 4.5, 0)),
    Part.ArcOfCircle(Part.Circle(V(158.9, -4, 0), V(0, 0, 1), 12), math.radians(45), math.radians(90)),
    Part.LineSegment(V(158.9, 8, 0), V(53.5, 8, 0)),
    Part.ArcOfCircle(Part.Circle(V(53.5, 5, 0), V(0, 0, 1), 3), math.radians(90), math.radians(225)),
    Part.LineSegment(V(51.4, 2.9, 0), V(58.7, -4.5, 0)),
    Part.ArcOfCircle(Part.Circle(V(67.2, 4, 0), V(0, 0, 1), 12), math.radians(-135), math.radians(-90)),
    Part.LineSegment(V(67.2, -8, 0), V(172.6, -8, 0)),
    Part.ArcOfCircle(Part.Circle(V(172.6, -5, 0), V(0, 0, 1), 3), math.radians(-90), math.radians(45)),
], False)
sketch6.addConstraint([
    Sketcher.Constraint("Tangent", 0, 2, 1, 1),
    Sketcher.Constraint("Tangent", 1, 2, 2, 1),
    Sketcher.Constraint("Tangent", 2, 2, 3, 1),
    Sketcher.Constraint("Tangent", 3, 2, 4, 1),
    Sketcher.Constraint("Tangent", 4, 2, 5, 1),
    Sketcher.Constraint("Tangent", 5, 2, 6, 1),
    Sketcher.Constraint("Tangent", 6, 2, 7, 1),
    Sketcher.Constraint("Tangent", 7, 2, 0, 1),
    Sketcher.Constraint("Horizontal", 2),
    Sketcher.Constraint("Horizontal", 6),
    Sketcher.Constraint("Equal", 1, 5),
    Sketcher.Constraint("Equal", 3, 7),
    Sketcher.Constraint("Parallel", 0, 4),
    Sketcher.Constraint("Radius", 1, Q("12 mm")),
    Sketcher.Constraint("Radius", 3, Q("3 mm")),
    Sketcher.Constraint("Angle", 0, Q("135 deg")),
    Sketcher.Constraint("DistanceY", 1, 3, -1, 1, Q("4 mm")),
    Sketcher.Constraint("DistanceY", -1, 1, 5, 3, Q("4 mm")),
    Sketcher.Constraint("DistanceX", 2, 2, 2, 1, Q("105.396994 mm")),
    Sketcher.Constraint("DistanceX", -1, 1, 3, 3, Q("53.482012 mm")),
])
pocket3 = body.newObject("PartDesign::Pocket", "Pocket002")
pocket3.Profile = sketch6
pocket3.Type = "ThroughAll"
doc.recompute()

fillet2 = body.newObject("PartDesign::Fillet", "Fillet001")
fillet2.Base = (pocket3, edges_at(pocket3, [
    (-30.947, 12, -8.854),
    (-31.75, 12, 0),
    (-30.947, 12, 8.854),
    (-31.874, 12, 13.203),
    (-28.143, 12, 15.622),
    (-22.451, 12, 22.451),
    (-15.622, 12, 28.143),
    (-13.203, 12, 31.874),
    (8.854, 12, 30.947),
    (13.203, 12, 31.874),
    (129.836, 0, 21),
    (263.548, 0, -17.913),
    (247.197, 0, 2.803),
    (228.685, 0, 20.239),
    (228.685, 12, 20.239),
    (247.197, 12, 2.803),
    (263.548, 12, -17.913),
    (188.777, 12, -21),
    (17.469, 12, -26.512),
    (17.469, 0, -26.512),
    (57.299, 0, -21),
    (129.836, 12, 21),
    (25.964, 0, -22.335),
    (25.964, 12, -22.335),
    (25.964, 0, 22.335),
    (25.964, 12, 22.335),
    (15.622, 12, 28.143),
    (99.205, 0, -21),
    (188.777, 0, -21),
    (99.205, 12, -21),
    (57.299, 12, -21),
    (89.002, 12, -21.617),
    (89.002, 0, -21.617),
    (105.016, 12, -26.774),
    (105.016, 0, -26.774),
    (107.266, 12, -24.632),
    (107.266, 0, -24.632),
    (99.205, 12, -30.85),
    (99.205, 0, -30.85),
    (91.862, 12, -30.469),
    (91.862, 0, -30.469),
    (86.78, 12, -25.925),
    (86.78, 0, -25.925),
    (81.697, 12, -21.381),
    (81.697, 0, -21.381),
    (116.712, 0, -21.381),
    (109.407, 0, -21.617),
    (99.205, 0, -26.85),
    (93.393, 0, -26.774),
    (91.144, 0, -24.632),
    (106.547, 0, -30.469),
    (111.63, 0, -25.925),
    (116.712, 12, -21.381),
    (111.63, 12, -25.925),
    (106.547, 12, -30.469),
    (91.144, 12, -24.632),
    (93.393, 12, -26.774),
    (99.205, 12, -26.85),
    (109.407, 12, -21.617),
    (17.469, 12, 26.512),
    (-13.203, 0, 31.874),
    (-15.622, 0, 28.143),
    (-22.451, 0, 22.451),
    (-28.143, 0, 15.622),
    (-31.874, 0, 13.203),
    (-30.947, 0, 8.854),
    (-31.75, 0, 0),
    (-30.947, 0, -8.854),
    (-31.874, 0, -13.203),
    (-28.143, 0, -15.622),
    (-22.451, 0, -22.451),
    (-15.622, 0, -28.143),
    (-13.203, 0, -31.874),
    (-8.854, 0, -30.947),
    (0, 0, -31.75),
    (8.854, 0, -30.947),
    (13.203, 0, -31.874),
    (15.622, 0, -28.143),
    (17.469, 0, 26.512),
    (15.622, 0, 28.143),
    (13.203, 0, 31.874),
    (8.854, 0, 30.947),
    (0, 0, 31.75),
    (-8.854, 0, 30.947),
    (-8.854, 12, 30.947),
    (15.622, 12, -28.143),
    (13.203, 12, -31.874),
    (8.854, 12, -30.947),
    (0, 12, -31.75),
    (-8.854, 12, -30.947),
    (-13.203, 12, -31.874),
    (-15.622, 12, -28.143),
    (-22.451, 12, -22.451),
    (0, 12, 31.75),
    (-28.143, 12, -15.622),
    (-31.874, 12, -13.203),
]))
fillet2.Radius = 1
doc.recompute()

fillet3 = body.newObject("PartDesign::Fillet", "Fillet002")
fillet3.Base = (fillet2, edges_at(fillet2, [
    (62.618, 12, -7.087),
    (55.043, 12, -0.803),
    (50.71, 12, 6.148),
    (106.181, 12, 8),
    (163.471, 12, 7.087),
    (171.046, 12, 0.803),
    (175.379, 12, -6.148),
    (119.908, 12, -8),
    (62.618, 0, -7.087),
    (119.908, 0, -8),
    (175.379, 0, -6.148),
    (171.046, 0, 0.803),
    (163.471, 0, 7.087),
    (106.181, 0, 8),
    (50.71, 0, 6.148),
    (55.043, 0, -0.803),
]))
fillet3.Radius = 2

doc.recompute()
